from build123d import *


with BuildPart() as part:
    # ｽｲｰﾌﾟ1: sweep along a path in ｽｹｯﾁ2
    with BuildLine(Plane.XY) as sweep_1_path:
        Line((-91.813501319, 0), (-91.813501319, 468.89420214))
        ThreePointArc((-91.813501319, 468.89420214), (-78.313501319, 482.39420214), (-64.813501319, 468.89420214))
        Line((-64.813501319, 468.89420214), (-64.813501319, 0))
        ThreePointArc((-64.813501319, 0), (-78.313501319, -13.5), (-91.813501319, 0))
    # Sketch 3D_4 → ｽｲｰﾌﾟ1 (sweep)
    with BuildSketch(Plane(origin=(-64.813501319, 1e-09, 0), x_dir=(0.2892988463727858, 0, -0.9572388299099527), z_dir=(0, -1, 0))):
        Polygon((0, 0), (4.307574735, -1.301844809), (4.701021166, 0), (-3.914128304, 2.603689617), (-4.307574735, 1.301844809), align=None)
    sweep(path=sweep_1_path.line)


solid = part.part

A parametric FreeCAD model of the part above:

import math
import FreeCAD as App
import Part
import Sketcher

V = App.Vector

doc = App.newDocument("Part")
body = doc.addObject("PartDesign::Body", "Body")

# Sketch on XZ plane
sketch1 = body.newObject("Sketcher::SketchObject", "Sketch")
sketch1.AttachmentSupport = (doc.getObject("XZ_Plane"), [""])
sketch1.MapMode = "FlatFace"
sketch1.addGeometry(Part.LineSegment(V(-64.8, -4.5, 0), V(-63.5, -4.5, 0)), False)
sketch1.addGeometry(Part.LineSegment(V(-63.5, -4.5, 0), V(-63.5, 4.5, 0)), False)
sketch1.addGeometry(Part.LineSegment(V(-63.5, 4.5, 0), V(-64.8, 4.5, 0)), False)
sketch1.addGeometry(Part.LineSegment(V(-64.8, 4.5, 0), V(-64.8, -4.5, 0)), False)
sketch1.addConstraint(Sketcher.Constraint("Coincident", 0, 2, 1, 1))
sketch1.addConstraint(Sketcher.Constraint("Coincident", 1, 2, 2, 1))
sketch1.addConstraint(Sketcher.Constraint("Coincident", 2, 2, 3, 1))
sketch1.addConstraint(Sketcher.Constraint("Coincident", 3, 2, 0, 1))
sketch1.addConstraint(Sketcher.Constraint("Horizontal", 0))
sketch1.addConstraint(Sketcher.Constraint("Vertical", 1))
sketch1.addConstraint(Sketcher.Constraint("Horizontal", 2))
sketch1.addConstraint(Sketcher.Constraint("Vertical", 3))
sketch1.addConstraint(Sketcher.Constraint("DistanceY", 1, 1, 1, 2, 9.0))
sketch1.addConstraint(Sketcher.Constraint("DistanceX", 0, 1, 0, 2, 1.36))
sketch1.addConstraint(Sketcher.Constraint("DistanceY", 0, 2, -1, 1, 4.5))
sketch1.addConstraint(Sketcher.Constraint("DistanceX", 0, 2, -1, 1, 63.453501))

# Sketch on XY plane
sketch2 = body.newObject("Sketcher::SketchObject", "Sketch001")
sketch2.AttachmentSupport = (doc.getObject("XY_Plane"), [""])
sketch2.MapMode = "FlatFace"
sketch2.addGeometry(Part.LineSegment(V(-92, 0, 0), V(-92, 469, 0)), False)
sketch2.addGeometry(Part.ArcOfCircle(Part.Circle(V(-78, 469, 0), V(0, 0, 1), 14), math.radians(0), math.radians(180)), False)
sketch2.addGeometry(Part.LineSegment(V(-65, 469, 0), V(-65, 0, 0)), False)
sketch2.addGeometry(Part.ArcOfCircle(Part.Circle(V(-78, 0, 0), V(0, 0, 1), 14), math.radians(180), math.radians(360)), False)
sketch2.addConstraint(Sketcher.Constraint("Tangent", 0, 2, 1, 2))
sketch2.addConstraint(Sketcher.Constraint("Tangent", 1, 1, 2, 1))
sketch2.addConstraint(Sketcher.Constraint("Tangent", 2, 2, 3, 2))
sketch2.addConstraint(Sketcher.Constraint("Tangent", 3, 1, 0, 1))
sketch2.addConstraint(Sketcher.Constraint("Vertical", 0))
sketch2.addConstraint(Sketcher.Constraint("Vertical", 2))
sketch2.addConstraint(Sketcher.Constraint("PointOnObject", 3, 3, -1))
sketch2.addConstraint(Sketcher.Constraint("Radius", 1, 13.5))
sketch2.addConstraint(Sketcher.Constraint("DistanceX", 1, 3, -1, 1, 78.313501))
sketch2.addConstraint(Sketcher.Constraint("DistanceY", 0, 1, 0, 2, 468.894202))
doc.recompute()

additivepipe = body.newObject("PartDesign::AdditivePipe", "AdditivePipe")
additivepipe.Profile = sketch1
additivepipe.Spine = (sketch2, ["Edge1", "Edge2", "Edge3", "Edge4"])

doc.recompute()
